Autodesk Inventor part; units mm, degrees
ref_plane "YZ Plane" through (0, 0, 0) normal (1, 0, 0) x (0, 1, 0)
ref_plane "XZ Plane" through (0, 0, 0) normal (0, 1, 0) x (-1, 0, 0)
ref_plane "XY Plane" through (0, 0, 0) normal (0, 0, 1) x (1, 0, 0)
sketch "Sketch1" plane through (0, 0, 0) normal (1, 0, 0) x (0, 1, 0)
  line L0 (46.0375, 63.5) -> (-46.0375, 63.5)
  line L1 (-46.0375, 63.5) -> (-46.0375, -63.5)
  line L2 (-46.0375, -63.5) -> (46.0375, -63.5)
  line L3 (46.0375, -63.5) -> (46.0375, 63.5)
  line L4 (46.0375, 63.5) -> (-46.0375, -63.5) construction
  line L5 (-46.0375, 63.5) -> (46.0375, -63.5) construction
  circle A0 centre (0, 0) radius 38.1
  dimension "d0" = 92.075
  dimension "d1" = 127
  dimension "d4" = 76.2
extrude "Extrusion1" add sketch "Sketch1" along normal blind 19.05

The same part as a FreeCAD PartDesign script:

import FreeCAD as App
import Part
import Sketcher
Q = App.Units.Quantity

doc = App.newDocument("Part")
body = doc.addObject("PartDesign::Body", "Body")

# Sketch on YZ plane
sketch1 = body.newObject("Sketcher::SketchObject", "Sketch")
sketch1.AttachmentSupport = (doc.getObject("YZ_Plane"), [""])
sketch1.MapMode = "FlatFace"
sketch1.addGeometry([
    Part.LineSegment(App.Vector(46, -64, 0), App.Vector(46, 64, 0)),  # 0
    Part.LineSegment(App.Vector(46, 64, 0), App.Vector(-46, 64, 0)),  # 1
    Part.LineSegment(App.Vector(-46, 64, 0), App.Vector(-46, -64, 0)),  # 2
    Part.LineSegment(App.Vector(-46, -64, 0), App.Vector(46, -64, 0)),  # 3
    Part.Circle(App.Vector(0, 0, 0), App.Vector(0, 0, 1), 38),  # 4
], False)
sketch1.addConstraint([
    Sketcher.Constraint("Coincident", 0, 2, 1, 1),
    Sketcher.Constraint("Coincident", 1, 2, 2, 1),
    Sketcher.Constraint("Coincident", 2, 2, 3, 1),
    Sketcher.Constraint("Coincident", 3, 2, 0, 1),
    Sketcher.Constraint("Vertical", 0),
    Sketcher.Constraint("Horizontal", 1),
    Sketcher.Constraint("Vertical", 2),
    Sketcher.Constraint("Horizontal", 3),
    Sketcher.Constraint("Coincident", 4, 3, -1, 1),
    Sketcher.Constraint("Symmetric", 0, 2, 2, 2, -1, 1),
    Sketcher.Constraint("Diameter", 4, Q("3 in")),
    Sketcher.Constraint("DistanceY", 0, 1, 0, 2, Q("5 in")),
    Sketcher.Constraint("DistanceX", 1, 2, 1, 1, Q("3.625 in")),
])
pad1 = body.newObject("PartDesign::Pad", "Pad")
pad1.Profile = sketch1
pad1.Length = Q("0.75 in")

doc.recompute()
